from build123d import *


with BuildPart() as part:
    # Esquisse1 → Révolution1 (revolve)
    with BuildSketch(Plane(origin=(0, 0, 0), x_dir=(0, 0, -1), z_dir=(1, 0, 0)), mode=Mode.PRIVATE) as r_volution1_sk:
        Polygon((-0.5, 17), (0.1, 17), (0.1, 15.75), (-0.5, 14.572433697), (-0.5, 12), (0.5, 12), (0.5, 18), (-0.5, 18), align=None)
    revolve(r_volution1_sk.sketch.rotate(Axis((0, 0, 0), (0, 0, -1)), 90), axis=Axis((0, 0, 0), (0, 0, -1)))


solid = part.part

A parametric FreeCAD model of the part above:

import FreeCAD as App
import Part
import Sketcher

V = App.Vector
Q = App.Units.Quantity

doc = App.newDocument("Part")
body = doc.addObject("PartDesign::Body", "Body")

sketch1 = body.newObject("Sketcher::SketchObject", "Sketch")
sketch1.AttachmentSupport = (doc.getObject("YZ_Plane"), [""])
sketch1.MapMode = "FlatFace"
sketch1.addGeometry(Part.LineSegment(V(17, 0.5, 0), V(17, -0.1, 0)), False)
sketch1.addGeometry(Part.LineSegment(V(17, -0.1, 0), V(15.8, -0.1, 0)), False)
sketch1.addGeometry(Part.LineSegment(V(15.8, -0.1, 0), V(14.6, 0.5, 0)), False)
sketch1.addGeometry(Part.LineSegment(V(14.6, 0.5, 0), V(12, 0.5, 0)), False)
sketch1.addGeometry(Part.LineSegment(V(12, 0.5, 0), V(12, -0.5, 0)), False)
sketch1.addGeometry(Part.LineSegment(V(12, -0.5, 0), V(18, -0.5, 0)), False)
sketch1.addGeometry(Part.LineSegment(V(18, -0.5, 0), V(18, 0.5, 0)), False)
sketch1.addGeometry(Part.LineSegment(V(18, 0.5, 0), V(17, 0.5, 0)), False)
sketch1.addConstraint(Sketcher.Constraint("Coincident", 0, 2, 1, 1))
sketch1.addConstraint(Sketcher.Constraint("Coincident", 1, 2, 2, 1))
sketch1.addConstraint(Sketcher.Constraint("Coincident", 2, 2, 3, 1))
sketch1.addConstraint(Sketcher.Constraint("Coincident", 3, 2, 4, 1))
sketch1.addConstraint(Sketcher.Constraint("Coincident", 4, 2, 5, 1))
sketch1.addConstraint(Sketcher.Constraint("Coincident", 5, 2, 6, 1))
sketch1.addConstraint(Sketcher.Constraint("Coincident", 6, 2, 7, 1))
sketch1.addConstraint(Sketcher.Constraint("Coincident", 7, 2, 0, 1))
sketch1.addConstraint(Sketcher.Constraint("Vertical", 0))
sketch1.addConstraint(Sketcher.Constraint("Horizontal", 1))
sketch1.addConstraint(Sketcher.Constraint("Horizontal", 3))
sketch1.addConstraint(Sketcher.Constraint("Vertical", 4))
sketch1.addConstraint(Sketcher.Constraint("Horizontal", 5))
sketch1.addConstraint(Sketcher.Constraint("Vertical", 6))
sketch1.addConstraint(Sketcher.Constraint("Horizontal", 7))
sketch1.addConstraint(Sketcher.Constraint("Horizontal", 3, 2, 6, 2))
sketch1.addConstraint(Sketcher.Constraint("Equal", 7, 4))
sketch1.addConstraint(Sketcher.Constraint("DistanceX", 5, 1, 5, 2, Q("6 mm")))
sketch1.addConstraint(Sketcher.Constraint("DistanceX", 7, 2, 7, 1, Q("1 mm")))
sketch1.addConstraint(Sketcher.Constraint("Angle", 2, Q("153 deg")))
sketch1.addConstraint(Sketcher.Constraint("DistanceY", 0, 2, 0, 1, Q("0.6 mm")))
sketch1.addConstraint(Sketcher.Constraint("DistanceX", -1, 1, 0, 2, Q("17 mm")))
sketch1.addConstraint(Sketcher.Constraint("DistanceX", 1, 2, 1, 1, Q("1.25 mm")))
sketch1.addConstraint(Sketcher.Constraint("DistanceY", 0, 2, -1, 1, Q("0.1 mm")))
revolution = body.newObject("PartDesign::Revolution", "Revolution")
revolution.Profile = sketch1
revolution.ReferenceAxis = (sketch1, ["V_Axis"])
revolution.Angle = 360

doc.recompute()
